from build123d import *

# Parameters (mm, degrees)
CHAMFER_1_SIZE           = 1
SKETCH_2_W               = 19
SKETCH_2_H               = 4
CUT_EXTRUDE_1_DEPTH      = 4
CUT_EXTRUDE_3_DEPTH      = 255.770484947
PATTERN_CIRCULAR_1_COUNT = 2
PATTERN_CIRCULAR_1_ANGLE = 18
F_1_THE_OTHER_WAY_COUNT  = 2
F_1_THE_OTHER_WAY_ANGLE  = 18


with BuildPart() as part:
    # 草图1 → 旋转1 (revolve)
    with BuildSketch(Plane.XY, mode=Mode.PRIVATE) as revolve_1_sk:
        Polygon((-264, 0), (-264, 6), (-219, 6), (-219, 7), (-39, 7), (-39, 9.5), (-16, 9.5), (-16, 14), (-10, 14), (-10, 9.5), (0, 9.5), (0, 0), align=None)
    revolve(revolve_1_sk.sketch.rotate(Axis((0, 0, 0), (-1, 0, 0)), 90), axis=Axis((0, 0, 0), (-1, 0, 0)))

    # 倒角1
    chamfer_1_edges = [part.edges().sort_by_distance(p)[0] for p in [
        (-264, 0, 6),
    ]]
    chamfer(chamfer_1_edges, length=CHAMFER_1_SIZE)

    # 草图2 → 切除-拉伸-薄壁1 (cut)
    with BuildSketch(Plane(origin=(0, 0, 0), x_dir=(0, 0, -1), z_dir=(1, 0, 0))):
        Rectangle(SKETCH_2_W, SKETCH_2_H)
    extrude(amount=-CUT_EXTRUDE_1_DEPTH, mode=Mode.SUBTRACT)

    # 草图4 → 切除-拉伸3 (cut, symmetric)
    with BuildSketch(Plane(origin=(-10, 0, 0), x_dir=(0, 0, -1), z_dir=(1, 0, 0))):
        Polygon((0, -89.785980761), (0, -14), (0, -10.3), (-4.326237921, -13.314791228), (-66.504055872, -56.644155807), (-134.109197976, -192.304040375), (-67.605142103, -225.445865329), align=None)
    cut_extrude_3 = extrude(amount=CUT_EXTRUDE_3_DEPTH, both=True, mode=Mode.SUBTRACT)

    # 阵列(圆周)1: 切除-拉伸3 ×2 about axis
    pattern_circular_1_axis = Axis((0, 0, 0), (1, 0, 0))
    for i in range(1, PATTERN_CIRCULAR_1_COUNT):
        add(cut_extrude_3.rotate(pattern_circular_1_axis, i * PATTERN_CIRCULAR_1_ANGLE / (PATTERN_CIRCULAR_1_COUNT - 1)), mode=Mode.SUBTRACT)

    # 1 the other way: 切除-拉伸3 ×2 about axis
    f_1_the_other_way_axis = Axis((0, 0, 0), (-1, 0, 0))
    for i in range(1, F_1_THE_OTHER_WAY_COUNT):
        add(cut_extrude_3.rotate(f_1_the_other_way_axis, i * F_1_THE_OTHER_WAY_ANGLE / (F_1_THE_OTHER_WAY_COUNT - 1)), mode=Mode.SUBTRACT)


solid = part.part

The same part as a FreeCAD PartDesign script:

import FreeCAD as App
import Part
import Sketcher
Q = App.Units.Quantity


def edges_at(feature, points):
    """Names of the edges that pass closest to the given points."""
    edges = feature.Shape.Edges
    near = lambda p: min(range(len(edges)), key=lambda i: edges[i].distToShape(Part.Vertex(*p))[0])
    return sorted({f"Edge{near(p) + 1}" for p in points})

doc = App.newDocument("Part")
params = doc.addObject("Spreadsheet::Sheet", "Params")
for row, (alias, value) in enumerate([
    ("sketch1_width", "264 mm"),
    ("sketch1_width2", "10 mm"),
    ("sketch1_width3", "6 mm"),
    ("sketch1_width4", "23 mm"),
    ("sketch1_width5", "180 mm"),
    ("revolution_angle", "360 deg"),
    ("chamfer_size", "1 mm"),
    ("sketch2_width", "4 mm"),
    ("sketch2_height", "19 mm"),
    ("pocket1_length", "4 mm"),
    ("pocket2_length", "511.54097 mm"),
], start=1):
    params.set(f"A{row}", alias)
    params.set(f"B{row}", "=" + value)
    params.setAlias(f"B{row}", alias)

body = doc.addObject("PartDesign::Body", "Body")

sketch1 = body.newObject("Sketcher::SketchObject", "Sketch")
sketch1.AttachmentSupport = (doc.getObject("XY_Plane"), [""])
sketch1.MapMode = "FlatFace"
sketch1.addGeometry([
    Part.LineSegment(App.Vector(-264, 6, 0), App.Vector(-264, 0, 0)),
    Part.LineSegment(App.Vector(-264, 0, 0), App.Vector(0, 0, 0)),
    Part.LineSegment(App.Vector(0, 0, 0), App.Vector(0, 9.5, 0)),
    Part.LineSegment(App.Vector(0, 9.5, 0), App.Vector(-10, 9.5, 0)),
    Part.LineSegment(App.Vector(-10, 9.5, 0), App.Vector(-10, 14, 0)),
    Part.LineSegment(App.Vector(-10, 14, 0), App.Vector(-16, 14, 0)),
    Part.LineSegment(App.Vector(-16, 14, 0), App.Vector(-16, 9.5, 0)),
    Part.LineSegment(App.Vector(-16, 9.5, 0), App.Vector(-39, 9.5, 0)),
    Part.LineSegment(App.Vector(-39, 9.5, 0), App.Vector(-39, 7, 0)),
    Part.LineSegment(App.Vector(-39, 7, 0), App.Vector(-219, 7, 0)),
    Part.LineSegment(App.Vector(-219, 7, 0), App.Vector(-219, 6, 0)),
    Part.LineSegment(App.Vector(-219, 6, 0), App.Vector(-264, 6, 0)),
], False)
sketch1.addConstraint([
    Sketcher.Constraint("Coincident", 0, 2, 1, 1),
    Sketcher.Constraint("Coincident", 1, 2, 2, 1),
    Sketcher.Constraint("Coincident", 2, 2, 3, 1),
    Sketcher.Constraint("Coincident", 3, 2, 4, 1),
    Sketcher.Constraint("Coincident", 4, 2, 5, 1),
    Sketcher.Constraint("Coincident", 5, 2, 6, 1),
    Sketcher.Constraint("Coincident", 6, 2, 7, 1),
    Sketcher.Constraint("Coincident", 7, 2, 8, 1),
    Sketcher.Constraint("Coincident", 8, 2, 9, 1),
    Sketcher.Constraint("Coincident", 9, 2, 10, 1),
    Sketcher.Constraint("Coincident", 10, 2, 11, 1),
    Sketcher.Constraint("Coincident", 11, 2, 0, 1),
    Sketcher.Constraint("Vertical", 0),
    Sketcher.Constraint("Horizontal", 1),
    Sketcher.Constraint("Vertical", 2),
    Sketcher.Constraint("Horizontal", 3),
    Sketcher.Constraint("Vertical", 4),
    Sketcher.Constraint("Horizontal", 5),
    Sketcher.Constraint("Vertical", 6),
    Sketcher.Constraint("Horizontal", 7),
    Sketcher.Constraint("Vertical", 8),
    Sketcher.Constraint("Horizontal", 9),
    Sketcher.Constraint("Vertical", 10),
    Sketcher.Constraint("Horizontal", 11),
    Sketcher.Constraint("Coincident", 1, 2, -1, 1),
    Sketcher.Constraint("Horizontal", 3, 2, 6, 2),
    Sketcher.Constraint("Equal", 5, 0),
    Sketcher.Constraint("DistanceX", 1, 1, 1, 2, Q("264 mm")),
    Sketcher.Constraint("DistanceX", 3, 2, 3, 1, Q("10 mm")),
    Sketcher.Constraint("DistanceX", 5, 2, 5, 1, Q("6 mm")),
    Sketcher.Constraint("DistanceX", 7, 2, 7, 1, Q("23 mm")),
    Sketcher.Constraint("DistanceX", 9, 2, 9, 1, Q("180 mm")),
    Sketcher.Constraint("DistanceY", 10, 2, 10, 1, Q("1 mm")),
    Sketcher.Constraint("DistanceY", 2, 1, 2, 2, Q("9.5 mm")),
    Sketcher.Constraint("DistanceY", 4, 1, 4, 2, Q("4.5 mm")),
])
sketch1.setExpression("Constraints[27]", "Params.sketch1_width")
sketch1.setExpression("Constraints[28]", "Params.sketch1_width2")
sketch1.setExpression("Constraints[29]", "Params.sketch1_width3")
sketch1.setExpression("Constraints[30]", "Params.sketch1_width4")
sketch1.setExpression("Constraints[31]", "Params.sketch1_width5")
revolution = body.newObject("PartDesign::Revolution", "Revolution")
revolution.Profile = sketch1
revolution.ReferenceAxis = (sketch1, ["H_Axis"])
revolution.setExpression("Angle", "Params.revolution_angle")
doc.recompute()

chamfer = body.newObject("PartDesign::Chamfer", "Chamfer")
chamfer.Base = (revolution, edges_at(revolution, [(-264, 0, 6)]))
chamfer.setExpression("Size", "Params.chamfer_size")

sketch2 = body.newObject("Sketcher::SketchObject", "Sketch001")
sketch2.AttachmentSupport = (doc.getObject("YZ_Plane"), [""])
sketch2.MapMode = "FlatFace"
sketch2.addGeometry([
    Part.LineSegment(App.Vector(2, 9.5, 0), App.Vector(-2, 9.5, 0)),
    Part.LineSegment(App.Vector(-2, 9.5, 0), App.Vector(-2, -9.5, 0)),
    Part.LineSegment(App.Vector(-2, -9.5, 0), App.Vector(2, -9.5, 0)),
    Part.LineSegment(App.Vector(2, -9.5, 0), App.Vector(2, 9.5, 0)),
], False)
sketch2.addConstraint([
    Sketcher.Constraint("Coincident", 0, 2, 1, 1),
    Sketcher.Constraint("Coincident", 1, 2, 2, 1),
    Sketcher.Constraint("Coincident", 2, 2, 3, 1),
    Sketcher.Constraint("Coincident", 3, 2, 0, 1),
    Sketcher.Constraint("Horizontal", 0),
    Sketcher.Constraint("Vertical", 1),
    Sketcher.Constraint("Horizontal", 2),
    Sketcher.Constraint("Vertical", 3),
    Sketcher.Constraint("Symmetric", 0, 2, 2, 2, -1, 1),
    Sketcher.Constraint("DistanceX", 0, 2, 0, 1, Q("4 mm")),
    Sketcher.Constraint("DistanceY", 1, 2, 1, 1, Q("19 mm")),
])
sketch2.setExpression("Constraints[9]", "Params.sketch2_width")
sketch2.setExpression("Constraints[10]", "Params.sketch2_height")
pocket1 = body.newObject("PartDesign::Pocket", "Pocket")
pocket1.Profile = sketch2
pocket1.setExpression("Length", "Params.pocket1_length")

sketch3 = body.newObject("Sketcher::SketchObject", "Sketch002")
sketch3.AttachmentSupport = (doc.getObject("YZ_Plane"), [""])
sketch3.MapMode = "FlatFace"
sketch3.AttachmentOffset = App.Placement(App.Vector(0, 0, -10), App.Rotation())
sketch3.addGeometry([
    Part.LineSegment(App.Vector(-90, 0, 0), App.Vector(-10, 0, 0)),
    Part.LineSegment(App.Vector(-10, 0, 0), App.Vector(-57, 67, 0)),
    Part.LineSegment(App.Vector(-57, 67, 0), App.Vector(-192, 134, 0)),
    Part.LineSegment(App.Vector(-192, 134, 0), App.Vector(-225, 68, 0)),
    Part.LineSegment(App.Vector(-225, 68, 0), App.Vector(-90, 0, 0)),
], False)
sketch3.addConstraint([
    Sketcher.Constraint("Coincident", 0, 2, 1, 1),
    Sketcher.Constraint("Coincident", 1, 2, 2, 1),
    Sketcher.Constraint("Coincident", 2, 2, 3, 1),
    Sketcher.Constraint("Coincident", 3, 2, 4, 1),
    Sketcher.Constraint("Coincident", 4, 2, 0, 1),
    Sketcher.Constraint("Horizontal", 0),
    Sketcher.Constraint("PointOnObject", 0, 2, -1),
    Sketcher.Constraint("Perpendicular", 2, 3),
    Sketcher.Constraint("Perpendicular", 3, 4),
    Sketcher.Constraint("Equal", 2, 4),
    Sketcher.Constraint("DistanceX", 0, 2, -1, 1, Q("10.3 mm")),
    Sketcher.Constraint("DistanceX", 0, 1, 0, 2, Q("79.485981 mm")),
    Sketcher.Constraint("Distance", 2, Q("151.571962 mm")),
    Sketcher.Constraint("DistanceX", 2, 2, -1, 1, Q("192.30404 mm")),
    Sketcher.Constraint("DistanceX", 3, 2, 1, 2, Q("168.80171 mm")),
])
pocket2 = body.newObject("PartDesign::Pocket", "Pocket001")
pocket2.Profile = sketch3
pocket2.setExpression("Length", "Params.pocket2_length")
pocket2.Midplane = True
doc.recompute()

polarpattern = body.newObject("PartDesign::PolarPattern", "PolarPattern")
polarpattern.Originals = [pocket2]
polarpattern.Axis = (doc.getObject("X_Axis"), [""])
polarpattern.Angle = 18
polarpattern.Occurrences = 2
body.Tip = polarpattern
doc.recompute()

polarpattern2 = body.newObject("PartDesign::PolarPattern", "PolarPattern001")
polarpattern2.Originals = [pocket2]
polarpattern2.Axis = (doc.getObject("X_Axis"), [""])
polarpattern2.Angle = 18
polarpattern2.Occurrences = 2
polarpattern2.Reversed = True
body.Tip = polarpattern2

doc.recompute()
